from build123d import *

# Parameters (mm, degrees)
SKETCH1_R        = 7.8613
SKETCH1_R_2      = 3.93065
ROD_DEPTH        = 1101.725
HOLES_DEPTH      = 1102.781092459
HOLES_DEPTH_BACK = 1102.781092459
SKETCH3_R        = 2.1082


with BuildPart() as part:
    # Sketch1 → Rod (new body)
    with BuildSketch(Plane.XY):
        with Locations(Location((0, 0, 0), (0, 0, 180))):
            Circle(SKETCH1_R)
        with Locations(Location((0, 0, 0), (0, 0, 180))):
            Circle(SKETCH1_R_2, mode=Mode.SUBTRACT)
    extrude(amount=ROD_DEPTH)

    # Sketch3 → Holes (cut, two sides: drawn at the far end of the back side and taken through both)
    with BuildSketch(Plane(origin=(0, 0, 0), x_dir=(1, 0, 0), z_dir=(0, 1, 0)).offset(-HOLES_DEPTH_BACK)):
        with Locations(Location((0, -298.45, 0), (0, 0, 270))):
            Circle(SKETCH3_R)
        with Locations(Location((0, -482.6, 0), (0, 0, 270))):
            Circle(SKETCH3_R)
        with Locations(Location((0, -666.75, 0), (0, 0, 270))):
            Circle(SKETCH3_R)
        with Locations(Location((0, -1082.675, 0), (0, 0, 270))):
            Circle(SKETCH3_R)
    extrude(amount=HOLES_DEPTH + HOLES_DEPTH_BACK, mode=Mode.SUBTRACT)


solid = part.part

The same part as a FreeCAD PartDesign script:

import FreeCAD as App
import Part
import Sketcher
from FreeCAD import Vector
Q = App.Units.Quantity

doc = App.newDocument("Part")
params = doc.addObject("Spreadsheet::Sheet", "Params")
for row, (alias, value) in enumerate([
    ("sketch1_diameter", "0.619 in"),
    ("pad1_length", "43.375 in"),
    ("sketch2_diameter", "0.166 in"),
], start=1):
    params.set(f"A{row}", alias)
    params.set(f"B{row}", "=" + value)
    params.setAlias(f"B{row}", alias)

body = doc.addObject("PartDesign::Body", "Body")

# Sketch on XY plane
sketch1 = doc.addObject("Sketcher::SketchObject", "Sketch")
body.addObject(sketch1)
sketch1.AttachmentSupport = (doc.XY_Plane, [""])
sketch1.MapMode = "FlatFace"
sketch1.addGeometry([
    Part.Circle(Vector(0, 0, 0), Vector(0, 0, 1), 7.9),
    Part.Circle(Vector(0, 0, 0), Vector(0, 0, 1), 3.9),
], False)
sketch1.addConstraint([
    Sketcher.Constraint("Coincident", 0, 3, -1, 1),
    Sketcher.Constraint("Coincident", 1, 3, -1, 1),
    Sketcher.Constraint("Diameter", 0, Q("0.619 in")),
    Sketcher.Constraint("Diameter", 1, Q("0.3095 in")),
])
sketch1.setExpression("Constraints[2]", "Params.sketch1_diameter")
pad1 = doc.addObject("PartDesign::Pad", "Pad")
body.addObject(pad1)
pad1.Profile = sketch1
pad1.setExpression("Length", "Params.pad1_length")

# Sketch on XZ plane
sketch2 = doc.addObject("Sketcher::SketchObject", "Sketch001")
body.addObject(sketch2)
sketch2.AttachmentSupport = (doc.XZ_Plane, [""])
sketch2.MapMode = "FlatFace"
sketch2.addGeometry([
    Part.Circle(Vector(0, 298.4, 0), Vector(0, 0, 1), 2.1),
    Part.Circle(Vector(0, 482.6, 0), Vector(0, 0, 1), 2.1),
    Part.Circle(Vector(0, 666.8, 0), Vector(0, 0, 1), 2.1),
    Part.Circle(Vector(0, 1082.7, 0), Vector(0, 0, 1), 2.1),
], False)
sketch2.addConstraint([
    Sketcher.Constraint("Equal", 0, 1),
    Sketcher.Constraint("Equal", 1, 2),
    Sketcher.Constraint("Equal", 2, 3),
    Sketcher.Constraint("PointOnObject", 0, 3, -2),
    Sketcher.Constraint("PointOnObject", 1, 3, -2),
    Sketcher.Constraint("PointOnObject", 2, 3, -2),
    Sketcher.Constraint("PointOnObject", 3, 3, -2),
    Sketcher.Constraint("Diameter", 0, Q("0.166 in")),
    Sketcher.Constraint("DistanceY", -1, 1, 1, 3, Q("19 in")),
    Sketcher.Constraint("DistanceY", 0, 3, 2, 3, Q("14.5 in")),
    Sketcher.Constraint("DistanceY", -1, 1, 0, 3, Q("11.75 in")),
    Sketcher.Constraint("DistanceY", -1, 1, 3, 3, Q("42.625 in")),
])
sketch2.setExpression("Constraints[7]", "Params.sketch2_diameter")
pocket1 = doc.addObject("PartDesign::Pocket", "Pocket")
body.addObject(pocket1)
pocket1.Profile = sketch2
pocket1.Type = "ThroughAll"
pocket1.Midplane = True

doc.recompute()
